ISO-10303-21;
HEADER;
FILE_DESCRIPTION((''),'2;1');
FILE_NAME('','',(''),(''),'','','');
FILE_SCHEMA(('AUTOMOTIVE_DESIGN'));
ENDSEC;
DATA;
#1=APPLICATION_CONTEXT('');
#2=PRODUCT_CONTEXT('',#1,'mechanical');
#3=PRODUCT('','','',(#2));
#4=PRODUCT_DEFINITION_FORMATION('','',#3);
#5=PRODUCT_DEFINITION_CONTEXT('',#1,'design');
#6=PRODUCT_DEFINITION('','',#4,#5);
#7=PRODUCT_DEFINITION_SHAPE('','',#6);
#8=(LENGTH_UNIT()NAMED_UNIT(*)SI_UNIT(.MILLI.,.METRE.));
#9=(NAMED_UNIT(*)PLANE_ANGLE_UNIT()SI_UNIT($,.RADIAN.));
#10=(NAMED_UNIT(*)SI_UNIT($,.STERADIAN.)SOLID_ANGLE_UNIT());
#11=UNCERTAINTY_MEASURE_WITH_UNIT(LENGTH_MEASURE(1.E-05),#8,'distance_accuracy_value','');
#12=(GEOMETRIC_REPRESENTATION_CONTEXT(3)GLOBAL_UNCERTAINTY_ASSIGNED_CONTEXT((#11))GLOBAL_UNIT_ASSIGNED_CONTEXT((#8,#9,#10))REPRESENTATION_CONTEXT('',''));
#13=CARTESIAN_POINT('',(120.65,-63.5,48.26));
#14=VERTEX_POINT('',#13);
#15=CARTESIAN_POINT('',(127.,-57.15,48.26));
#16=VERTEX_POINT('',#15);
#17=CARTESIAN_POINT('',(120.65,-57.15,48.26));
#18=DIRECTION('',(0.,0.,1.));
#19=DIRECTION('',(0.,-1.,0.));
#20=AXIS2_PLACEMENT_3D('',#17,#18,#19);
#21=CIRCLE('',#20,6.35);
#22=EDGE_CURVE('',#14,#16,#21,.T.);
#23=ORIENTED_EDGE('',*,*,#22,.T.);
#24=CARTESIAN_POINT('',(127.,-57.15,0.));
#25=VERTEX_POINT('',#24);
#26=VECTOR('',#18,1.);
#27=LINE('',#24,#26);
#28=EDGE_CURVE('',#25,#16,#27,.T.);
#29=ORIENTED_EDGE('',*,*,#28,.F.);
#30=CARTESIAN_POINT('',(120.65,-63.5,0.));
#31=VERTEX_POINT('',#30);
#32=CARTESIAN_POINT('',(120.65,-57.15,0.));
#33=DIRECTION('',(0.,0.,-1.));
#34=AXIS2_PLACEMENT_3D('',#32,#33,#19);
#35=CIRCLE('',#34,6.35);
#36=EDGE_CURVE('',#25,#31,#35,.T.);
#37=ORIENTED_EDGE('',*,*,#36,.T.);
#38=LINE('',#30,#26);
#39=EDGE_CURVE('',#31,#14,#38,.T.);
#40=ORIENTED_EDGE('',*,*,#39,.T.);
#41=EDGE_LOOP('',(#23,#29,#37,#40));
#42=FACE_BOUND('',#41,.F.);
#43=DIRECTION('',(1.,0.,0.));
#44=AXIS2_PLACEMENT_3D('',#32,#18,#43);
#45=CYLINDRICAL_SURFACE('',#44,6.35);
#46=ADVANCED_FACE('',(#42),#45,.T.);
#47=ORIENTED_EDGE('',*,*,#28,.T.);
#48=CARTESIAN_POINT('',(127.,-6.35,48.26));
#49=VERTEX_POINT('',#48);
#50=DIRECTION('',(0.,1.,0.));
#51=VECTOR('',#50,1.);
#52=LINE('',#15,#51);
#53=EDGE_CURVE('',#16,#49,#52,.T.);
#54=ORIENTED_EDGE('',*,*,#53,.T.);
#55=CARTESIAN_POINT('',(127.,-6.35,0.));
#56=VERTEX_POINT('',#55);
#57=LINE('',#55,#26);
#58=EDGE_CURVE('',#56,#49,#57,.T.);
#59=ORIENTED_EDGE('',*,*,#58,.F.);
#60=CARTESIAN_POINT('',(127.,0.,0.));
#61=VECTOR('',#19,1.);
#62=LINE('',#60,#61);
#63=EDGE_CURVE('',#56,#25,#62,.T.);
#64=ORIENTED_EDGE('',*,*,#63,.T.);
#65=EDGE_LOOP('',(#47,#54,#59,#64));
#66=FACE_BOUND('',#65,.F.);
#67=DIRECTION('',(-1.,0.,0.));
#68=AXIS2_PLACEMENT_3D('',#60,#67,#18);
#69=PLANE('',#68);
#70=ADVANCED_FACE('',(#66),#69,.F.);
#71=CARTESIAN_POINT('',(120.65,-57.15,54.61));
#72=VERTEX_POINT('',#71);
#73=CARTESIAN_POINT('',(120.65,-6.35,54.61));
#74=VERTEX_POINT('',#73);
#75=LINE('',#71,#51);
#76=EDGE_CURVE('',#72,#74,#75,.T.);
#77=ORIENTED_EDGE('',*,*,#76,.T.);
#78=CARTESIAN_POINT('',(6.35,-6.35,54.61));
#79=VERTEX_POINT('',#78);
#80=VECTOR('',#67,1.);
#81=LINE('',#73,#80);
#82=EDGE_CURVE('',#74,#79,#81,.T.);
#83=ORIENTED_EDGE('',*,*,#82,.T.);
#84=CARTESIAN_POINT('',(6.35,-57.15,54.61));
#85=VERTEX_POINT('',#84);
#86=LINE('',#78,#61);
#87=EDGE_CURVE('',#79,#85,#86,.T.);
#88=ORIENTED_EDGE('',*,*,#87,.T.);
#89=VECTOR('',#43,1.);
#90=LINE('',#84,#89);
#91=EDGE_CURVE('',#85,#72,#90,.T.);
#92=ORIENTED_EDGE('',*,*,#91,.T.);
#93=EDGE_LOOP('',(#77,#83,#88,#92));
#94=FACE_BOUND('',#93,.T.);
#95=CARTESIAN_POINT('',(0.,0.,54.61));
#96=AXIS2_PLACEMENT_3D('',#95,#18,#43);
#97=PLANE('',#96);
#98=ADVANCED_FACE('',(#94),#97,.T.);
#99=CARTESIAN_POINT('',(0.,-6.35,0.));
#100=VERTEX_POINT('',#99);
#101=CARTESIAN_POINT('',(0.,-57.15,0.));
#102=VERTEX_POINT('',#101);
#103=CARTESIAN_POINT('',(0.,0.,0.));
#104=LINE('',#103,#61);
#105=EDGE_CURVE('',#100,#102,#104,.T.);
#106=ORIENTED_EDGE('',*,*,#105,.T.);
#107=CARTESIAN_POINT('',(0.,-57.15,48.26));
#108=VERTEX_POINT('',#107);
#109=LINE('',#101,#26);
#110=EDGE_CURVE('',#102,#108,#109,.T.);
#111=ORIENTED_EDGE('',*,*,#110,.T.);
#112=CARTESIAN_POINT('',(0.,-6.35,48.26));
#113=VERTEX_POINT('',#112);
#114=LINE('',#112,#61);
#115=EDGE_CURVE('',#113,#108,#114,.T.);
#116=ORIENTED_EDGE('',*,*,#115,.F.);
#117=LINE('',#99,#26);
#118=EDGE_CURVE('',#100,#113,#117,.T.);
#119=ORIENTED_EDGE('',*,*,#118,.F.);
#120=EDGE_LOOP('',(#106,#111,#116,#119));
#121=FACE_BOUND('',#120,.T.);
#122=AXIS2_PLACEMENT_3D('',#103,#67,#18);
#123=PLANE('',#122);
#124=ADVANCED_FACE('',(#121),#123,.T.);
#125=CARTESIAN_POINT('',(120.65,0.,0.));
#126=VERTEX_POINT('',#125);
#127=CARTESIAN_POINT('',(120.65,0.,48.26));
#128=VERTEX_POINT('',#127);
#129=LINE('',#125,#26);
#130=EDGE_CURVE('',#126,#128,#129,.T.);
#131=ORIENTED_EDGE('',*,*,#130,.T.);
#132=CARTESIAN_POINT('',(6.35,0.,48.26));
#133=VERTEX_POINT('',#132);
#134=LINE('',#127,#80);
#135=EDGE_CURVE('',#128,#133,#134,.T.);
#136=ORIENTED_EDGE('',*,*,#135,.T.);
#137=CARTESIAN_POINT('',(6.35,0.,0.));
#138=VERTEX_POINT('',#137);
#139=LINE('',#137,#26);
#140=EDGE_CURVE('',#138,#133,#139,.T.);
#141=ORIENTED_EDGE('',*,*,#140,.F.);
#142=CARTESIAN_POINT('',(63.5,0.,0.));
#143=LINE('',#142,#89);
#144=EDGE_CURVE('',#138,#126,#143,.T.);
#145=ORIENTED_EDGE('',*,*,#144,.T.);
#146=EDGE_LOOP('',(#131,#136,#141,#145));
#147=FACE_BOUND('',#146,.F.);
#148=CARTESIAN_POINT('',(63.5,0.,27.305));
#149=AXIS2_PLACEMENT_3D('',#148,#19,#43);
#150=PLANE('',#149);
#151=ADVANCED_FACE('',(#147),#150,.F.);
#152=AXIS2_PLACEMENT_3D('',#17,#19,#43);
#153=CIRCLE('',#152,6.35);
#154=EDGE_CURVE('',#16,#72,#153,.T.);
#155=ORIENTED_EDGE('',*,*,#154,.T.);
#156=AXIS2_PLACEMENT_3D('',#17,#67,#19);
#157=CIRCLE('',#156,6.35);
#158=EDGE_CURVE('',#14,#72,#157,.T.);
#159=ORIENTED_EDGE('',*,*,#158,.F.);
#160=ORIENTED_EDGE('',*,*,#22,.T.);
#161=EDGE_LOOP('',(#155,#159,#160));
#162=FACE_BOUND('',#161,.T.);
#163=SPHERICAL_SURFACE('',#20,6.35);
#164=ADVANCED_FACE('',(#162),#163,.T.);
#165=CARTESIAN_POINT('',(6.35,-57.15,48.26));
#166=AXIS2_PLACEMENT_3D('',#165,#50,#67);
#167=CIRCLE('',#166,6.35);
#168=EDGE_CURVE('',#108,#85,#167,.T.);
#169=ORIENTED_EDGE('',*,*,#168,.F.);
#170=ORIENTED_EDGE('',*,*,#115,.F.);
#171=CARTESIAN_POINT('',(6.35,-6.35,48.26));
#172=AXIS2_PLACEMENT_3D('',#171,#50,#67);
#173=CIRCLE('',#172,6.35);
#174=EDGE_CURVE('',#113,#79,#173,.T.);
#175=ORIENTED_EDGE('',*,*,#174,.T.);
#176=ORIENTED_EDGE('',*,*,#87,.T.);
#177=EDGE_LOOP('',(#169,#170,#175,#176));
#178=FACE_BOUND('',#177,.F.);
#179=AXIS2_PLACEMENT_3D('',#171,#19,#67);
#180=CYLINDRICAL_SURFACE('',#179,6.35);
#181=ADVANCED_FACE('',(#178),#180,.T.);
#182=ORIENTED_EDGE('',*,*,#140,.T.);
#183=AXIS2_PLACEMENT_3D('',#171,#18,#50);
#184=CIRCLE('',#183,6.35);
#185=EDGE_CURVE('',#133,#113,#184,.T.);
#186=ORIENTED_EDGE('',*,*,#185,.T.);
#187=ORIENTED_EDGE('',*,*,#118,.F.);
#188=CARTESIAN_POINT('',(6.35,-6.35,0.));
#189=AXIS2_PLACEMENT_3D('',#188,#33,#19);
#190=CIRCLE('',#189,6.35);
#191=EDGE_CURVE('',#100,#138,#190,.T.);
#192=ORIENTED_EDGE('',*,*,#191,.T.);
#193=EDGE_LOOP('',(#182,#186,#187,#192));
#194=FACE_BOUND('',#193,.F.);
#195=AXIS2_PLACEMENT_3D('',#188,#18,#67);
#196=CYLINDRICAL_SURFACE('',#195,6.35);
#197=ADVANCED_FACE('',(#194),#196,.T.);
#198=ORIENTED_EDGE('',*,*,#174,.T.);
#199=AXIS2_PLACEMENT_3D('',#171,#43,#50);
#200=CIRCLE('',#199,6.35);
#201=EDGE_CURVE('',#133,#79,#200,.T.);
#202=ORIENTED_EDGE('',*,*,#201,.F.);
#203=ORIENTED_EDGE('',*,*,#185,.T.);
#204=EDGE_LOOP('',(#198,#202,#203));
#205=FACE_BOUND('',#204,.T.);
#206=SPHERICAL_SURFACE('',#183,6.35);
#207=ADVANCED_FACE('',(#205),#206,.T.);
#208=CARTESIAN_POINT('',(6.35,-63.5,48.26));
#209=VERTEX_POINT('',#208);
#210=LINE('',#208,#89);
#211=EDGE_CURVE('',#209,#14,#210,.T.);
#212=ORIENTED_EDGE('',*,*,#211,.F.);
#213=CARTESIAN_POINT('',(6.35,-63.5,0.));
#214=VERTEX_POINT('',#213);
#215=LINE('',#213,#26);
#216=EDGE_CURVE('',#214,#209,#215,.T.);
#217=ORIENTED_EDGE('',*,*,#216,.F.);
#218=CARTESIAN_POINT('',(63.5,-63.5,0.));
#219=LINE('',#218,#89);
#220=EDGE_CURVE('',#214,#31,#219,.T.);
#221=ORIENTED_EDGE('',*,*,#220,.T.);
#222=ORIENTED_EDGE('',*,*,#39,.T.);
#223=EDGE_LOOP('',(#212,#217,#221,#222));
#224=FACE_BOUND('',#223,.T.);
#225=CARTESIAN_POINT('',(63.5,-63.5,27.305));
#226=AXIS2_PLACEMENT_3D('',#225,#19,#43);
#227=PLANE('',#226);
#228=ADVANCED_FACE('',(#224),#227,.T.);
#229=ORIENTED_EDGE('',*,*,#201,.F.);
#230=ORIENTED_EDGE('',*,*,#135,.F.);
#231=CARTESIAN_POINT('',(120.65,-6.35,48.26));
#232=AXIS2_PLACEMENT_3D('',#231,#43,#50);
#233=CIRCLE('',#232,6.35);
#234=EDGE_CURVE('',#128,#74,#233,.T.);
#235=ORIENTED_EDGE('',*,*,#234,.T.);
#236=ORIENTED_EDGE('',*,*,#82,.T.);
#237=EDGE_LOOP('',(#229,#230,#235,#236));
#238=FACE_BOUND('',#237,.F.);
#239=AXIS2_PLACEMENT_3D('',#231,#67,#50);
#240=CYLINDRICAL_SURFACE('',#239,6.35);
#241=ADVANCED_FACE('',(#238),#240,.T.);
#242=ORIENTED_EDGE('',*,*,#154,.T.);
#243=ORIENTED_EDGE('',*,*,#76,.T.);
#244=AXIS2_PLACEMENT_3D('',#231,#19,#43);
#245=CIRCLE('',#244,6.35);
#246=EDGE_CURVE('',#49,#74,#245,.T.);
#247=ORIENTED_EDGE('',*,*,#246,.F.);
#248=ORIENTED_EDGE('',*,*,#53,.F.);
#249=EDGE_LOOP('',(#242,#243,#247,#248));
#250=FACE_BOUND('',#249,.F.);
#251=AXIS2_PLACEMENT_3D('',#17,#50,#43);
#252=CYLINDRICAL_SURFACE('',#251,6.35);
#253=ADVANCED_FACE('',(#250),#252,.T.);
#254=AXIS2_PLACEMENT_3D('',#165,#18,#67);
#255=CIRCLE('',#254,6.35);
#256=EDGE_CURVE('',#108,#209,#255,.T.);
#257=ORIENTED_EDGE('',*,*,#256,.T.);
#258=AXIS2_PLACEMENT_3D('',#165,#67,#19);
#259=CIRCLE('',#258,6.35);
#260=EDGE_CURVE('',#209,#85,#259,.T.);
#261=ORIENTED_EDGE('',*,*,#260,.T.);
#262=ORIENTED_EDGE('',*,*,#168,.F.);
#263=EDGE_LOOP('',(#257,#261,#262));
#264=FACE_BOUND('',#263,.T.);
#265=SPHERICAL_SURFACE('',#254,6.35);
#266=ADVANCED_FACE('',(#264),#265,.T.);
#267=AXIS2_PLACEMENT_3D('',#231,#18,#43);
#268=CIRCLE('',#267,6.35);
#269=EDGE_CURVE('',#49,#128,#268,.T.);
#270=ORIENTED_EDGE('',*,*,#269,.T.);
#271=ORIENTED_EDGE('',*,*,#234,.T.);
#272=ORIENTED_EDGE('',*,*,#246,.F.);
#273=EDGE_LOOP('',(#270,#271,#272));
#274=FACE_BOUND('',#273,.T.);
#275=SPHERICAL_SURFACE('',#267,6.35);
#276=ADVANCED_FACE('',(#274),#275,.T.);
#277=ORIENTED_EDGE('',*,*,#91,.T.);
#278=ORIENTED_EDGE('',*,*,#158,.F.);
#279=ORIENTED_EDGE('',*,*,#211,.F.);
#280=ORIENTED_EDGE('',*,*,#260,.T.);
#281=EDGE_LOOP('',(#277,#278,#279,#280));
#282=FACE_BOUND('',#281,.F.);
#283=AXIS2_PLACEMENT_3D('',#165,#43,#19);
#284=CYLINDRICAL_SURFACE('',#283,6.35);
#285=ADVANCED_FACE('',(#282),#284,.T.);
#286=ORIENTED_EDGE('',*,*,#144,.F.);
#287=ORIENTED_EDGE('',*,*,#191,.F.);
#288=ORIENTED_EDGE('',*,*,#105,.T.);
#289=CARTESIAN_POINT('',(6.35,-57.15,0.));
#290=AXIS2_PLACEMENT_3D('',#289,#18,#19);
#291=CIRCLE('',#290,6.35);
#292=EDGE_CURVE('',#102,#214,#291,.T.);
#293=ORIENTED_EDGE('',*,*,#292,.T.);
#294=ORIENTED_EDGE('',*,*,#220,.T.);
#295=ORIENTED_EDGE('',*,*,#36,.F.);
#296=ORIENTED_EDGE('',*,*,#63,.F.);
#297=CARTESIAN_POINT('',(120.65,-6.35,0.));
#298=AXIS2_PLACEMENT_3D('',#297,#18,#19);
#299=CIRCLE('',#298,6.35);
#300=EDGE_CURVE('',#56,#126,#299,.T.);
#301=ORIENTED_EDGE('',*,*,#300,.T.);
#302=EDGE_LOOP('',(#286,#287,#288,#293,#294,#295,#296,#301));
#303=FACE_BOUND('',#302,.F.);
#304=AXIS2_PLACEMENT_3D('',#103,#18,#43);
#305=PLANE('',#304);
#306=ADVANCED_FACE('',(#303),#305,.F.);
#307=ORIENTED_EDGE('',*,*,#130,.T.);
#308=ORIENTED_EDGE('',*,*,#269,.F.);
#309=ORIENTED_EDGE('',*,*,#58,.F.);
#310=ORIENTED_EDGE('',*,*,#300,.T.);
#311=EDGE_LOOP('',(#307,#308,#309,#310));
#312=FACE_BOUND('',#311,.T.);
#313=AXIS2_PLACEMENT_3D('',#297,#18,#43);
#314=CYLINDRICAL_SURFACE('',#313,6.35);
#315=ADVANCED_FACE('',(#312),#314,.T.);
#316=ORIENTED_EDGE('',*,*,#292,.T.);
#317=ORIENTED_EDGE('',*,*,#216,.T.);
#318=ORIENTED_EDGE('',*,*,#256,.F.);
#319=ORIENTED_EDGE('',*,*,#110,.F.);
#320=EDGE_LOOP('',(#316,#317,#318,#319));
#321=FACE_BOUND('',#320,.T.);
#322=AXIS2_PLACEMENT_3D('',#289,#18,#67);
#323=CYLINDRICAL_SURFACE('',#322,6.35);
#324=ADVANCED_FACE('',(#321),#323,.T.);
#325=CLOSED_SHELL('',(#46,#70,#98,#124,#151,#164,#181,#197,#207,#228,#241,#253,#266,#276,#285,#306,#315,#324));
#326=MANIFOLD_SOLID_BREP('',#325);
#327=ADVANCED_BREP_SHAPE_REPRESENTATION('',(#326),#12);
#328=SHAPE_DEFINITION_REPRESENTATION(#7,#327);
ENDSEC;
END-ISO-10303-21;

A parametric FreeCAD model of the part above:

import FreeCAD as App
import Part
import Sketcher

V = App.Vector
Q = App.Units.Quantity


def edges_at(feature, points):
    """Names of the edges that pass closest to the given points."""
    edges = feature.Shape.Edges
    near = lambda p: min(range(len(edges)), key=lambda i: edges[i].distToShape(Part.Vertex(*p))[0])
    return sorted({f"Edge{near(p) + 1}" for p in points})

doc = App.newDocument("Part")
params = doc.addObject("Spreadsheet::Sheet", "Params")
for row, (alias, value) in enumerate([
    ("sketch1_width", "5 in"),
    ("sketch1_height", "2.15 in"),
    ("pad1_length", "2.5 in"),
    ("fillet_radius", "0.25 in"),
    ("fillet2_radius", "0.25 in"),
], start=1):
    params.set(f"A{row}", alias)
    params.set(f"B{row}", "=" + value)
    params.setAlias(f"B{row}", alias)

body = doc.addObject("PartDesign::Body", "Body")

# Sketch on XZ plane
sketch1 = body.newObject("Sketcher::SketchObject", "Sketch")
sketch1.AttachmentSupport = (doc.getObject("XZ_Plane"), [""])
sketch1.MapMode = "FlatFace"
sketch1.addGeometry(Part.LineSegment(V(0, 55, 0), V(0, 0, 0)), False)
sketch1.addGeometry(Part.LineSegment(V(0, 0, 0), V(127, 0, 0)), False)
sketch1.addGeometry(Part.LineSegment(V(127, 0, 0), V(127, 55, 0)), False)
sketch1.addGeometry(Part.LineSegment(V(127, 55, 0), V(0, 55, 0)), False)
sketch1.addConstraint(Sketcher.Constraint("Coincident", 0, 2, 1, 1))
sketch1.addConstraint(Sketcher.Constraint("Coincident", 1, 2, 2, 1))
sketch1.addConstraint(Sketcher.Constraint("Coincident", 2, 2, 3, 1))
sketch1.addConstraint(Sketcher.Constraint("Coincident", 3, 2, 0, 1))
sketch1.addConstraint(Sketcher.Constraint("Vertical", 0))
sketch1.addConstraint(Sketcher.Constraint("Horizontal", 1))
sketch1.addConstraint(Sketcher.Constraint("Vertical", 2))
sketch1.addConstraint(Sketcher.Constraint("Horizontal", 3))
sketch1.addConstraint(Sketcher.Constraint("Coincident", 0, 2, -1, 1))
sketch1.addConstraint(Sketcher.Constraint("DistanceX", 1, 1, 1, 2, Q("5 in")))
sketch1.addConstraint(Sketcher.Constraint("DistanceY", 0, 2, 0, 1, Q("2.15 in")))
sketch1.setExpression("Constraints[9]", "Params.sketch1_width")
sketch1.setExpression("Constraints[10]", "Params.sketch1_height")
pad1 = body.newObject("PartDesign::Pad", "Pad")
pad1.Profile = sketch1
pad1.setExpression("Length", "Params.pad1_length")
doc.recompute()

fillet = body.newObject("PartDesign::Fillet", "Fillet")
fillet.Base = (pad1, edges_at(pad1, [
    (127, -63.5, 27.305),
    (127, 0, 27.305),
    (0, -63.5, 27.305),
    (0, 0, 27.305),
]))
fillet.setExpression("Radius", "Params.fillet_radius")
doc.recompute()

fillet2 = body.newObject("PartDesign::Fillet", "Fillet001")
fillet2.Base = (fillet, edges_at(fillet, [(0, -31.75, 54.61)]))
fillet2.setExpression("Radius", "Params.fillet2_radius")

doc.recompute()
